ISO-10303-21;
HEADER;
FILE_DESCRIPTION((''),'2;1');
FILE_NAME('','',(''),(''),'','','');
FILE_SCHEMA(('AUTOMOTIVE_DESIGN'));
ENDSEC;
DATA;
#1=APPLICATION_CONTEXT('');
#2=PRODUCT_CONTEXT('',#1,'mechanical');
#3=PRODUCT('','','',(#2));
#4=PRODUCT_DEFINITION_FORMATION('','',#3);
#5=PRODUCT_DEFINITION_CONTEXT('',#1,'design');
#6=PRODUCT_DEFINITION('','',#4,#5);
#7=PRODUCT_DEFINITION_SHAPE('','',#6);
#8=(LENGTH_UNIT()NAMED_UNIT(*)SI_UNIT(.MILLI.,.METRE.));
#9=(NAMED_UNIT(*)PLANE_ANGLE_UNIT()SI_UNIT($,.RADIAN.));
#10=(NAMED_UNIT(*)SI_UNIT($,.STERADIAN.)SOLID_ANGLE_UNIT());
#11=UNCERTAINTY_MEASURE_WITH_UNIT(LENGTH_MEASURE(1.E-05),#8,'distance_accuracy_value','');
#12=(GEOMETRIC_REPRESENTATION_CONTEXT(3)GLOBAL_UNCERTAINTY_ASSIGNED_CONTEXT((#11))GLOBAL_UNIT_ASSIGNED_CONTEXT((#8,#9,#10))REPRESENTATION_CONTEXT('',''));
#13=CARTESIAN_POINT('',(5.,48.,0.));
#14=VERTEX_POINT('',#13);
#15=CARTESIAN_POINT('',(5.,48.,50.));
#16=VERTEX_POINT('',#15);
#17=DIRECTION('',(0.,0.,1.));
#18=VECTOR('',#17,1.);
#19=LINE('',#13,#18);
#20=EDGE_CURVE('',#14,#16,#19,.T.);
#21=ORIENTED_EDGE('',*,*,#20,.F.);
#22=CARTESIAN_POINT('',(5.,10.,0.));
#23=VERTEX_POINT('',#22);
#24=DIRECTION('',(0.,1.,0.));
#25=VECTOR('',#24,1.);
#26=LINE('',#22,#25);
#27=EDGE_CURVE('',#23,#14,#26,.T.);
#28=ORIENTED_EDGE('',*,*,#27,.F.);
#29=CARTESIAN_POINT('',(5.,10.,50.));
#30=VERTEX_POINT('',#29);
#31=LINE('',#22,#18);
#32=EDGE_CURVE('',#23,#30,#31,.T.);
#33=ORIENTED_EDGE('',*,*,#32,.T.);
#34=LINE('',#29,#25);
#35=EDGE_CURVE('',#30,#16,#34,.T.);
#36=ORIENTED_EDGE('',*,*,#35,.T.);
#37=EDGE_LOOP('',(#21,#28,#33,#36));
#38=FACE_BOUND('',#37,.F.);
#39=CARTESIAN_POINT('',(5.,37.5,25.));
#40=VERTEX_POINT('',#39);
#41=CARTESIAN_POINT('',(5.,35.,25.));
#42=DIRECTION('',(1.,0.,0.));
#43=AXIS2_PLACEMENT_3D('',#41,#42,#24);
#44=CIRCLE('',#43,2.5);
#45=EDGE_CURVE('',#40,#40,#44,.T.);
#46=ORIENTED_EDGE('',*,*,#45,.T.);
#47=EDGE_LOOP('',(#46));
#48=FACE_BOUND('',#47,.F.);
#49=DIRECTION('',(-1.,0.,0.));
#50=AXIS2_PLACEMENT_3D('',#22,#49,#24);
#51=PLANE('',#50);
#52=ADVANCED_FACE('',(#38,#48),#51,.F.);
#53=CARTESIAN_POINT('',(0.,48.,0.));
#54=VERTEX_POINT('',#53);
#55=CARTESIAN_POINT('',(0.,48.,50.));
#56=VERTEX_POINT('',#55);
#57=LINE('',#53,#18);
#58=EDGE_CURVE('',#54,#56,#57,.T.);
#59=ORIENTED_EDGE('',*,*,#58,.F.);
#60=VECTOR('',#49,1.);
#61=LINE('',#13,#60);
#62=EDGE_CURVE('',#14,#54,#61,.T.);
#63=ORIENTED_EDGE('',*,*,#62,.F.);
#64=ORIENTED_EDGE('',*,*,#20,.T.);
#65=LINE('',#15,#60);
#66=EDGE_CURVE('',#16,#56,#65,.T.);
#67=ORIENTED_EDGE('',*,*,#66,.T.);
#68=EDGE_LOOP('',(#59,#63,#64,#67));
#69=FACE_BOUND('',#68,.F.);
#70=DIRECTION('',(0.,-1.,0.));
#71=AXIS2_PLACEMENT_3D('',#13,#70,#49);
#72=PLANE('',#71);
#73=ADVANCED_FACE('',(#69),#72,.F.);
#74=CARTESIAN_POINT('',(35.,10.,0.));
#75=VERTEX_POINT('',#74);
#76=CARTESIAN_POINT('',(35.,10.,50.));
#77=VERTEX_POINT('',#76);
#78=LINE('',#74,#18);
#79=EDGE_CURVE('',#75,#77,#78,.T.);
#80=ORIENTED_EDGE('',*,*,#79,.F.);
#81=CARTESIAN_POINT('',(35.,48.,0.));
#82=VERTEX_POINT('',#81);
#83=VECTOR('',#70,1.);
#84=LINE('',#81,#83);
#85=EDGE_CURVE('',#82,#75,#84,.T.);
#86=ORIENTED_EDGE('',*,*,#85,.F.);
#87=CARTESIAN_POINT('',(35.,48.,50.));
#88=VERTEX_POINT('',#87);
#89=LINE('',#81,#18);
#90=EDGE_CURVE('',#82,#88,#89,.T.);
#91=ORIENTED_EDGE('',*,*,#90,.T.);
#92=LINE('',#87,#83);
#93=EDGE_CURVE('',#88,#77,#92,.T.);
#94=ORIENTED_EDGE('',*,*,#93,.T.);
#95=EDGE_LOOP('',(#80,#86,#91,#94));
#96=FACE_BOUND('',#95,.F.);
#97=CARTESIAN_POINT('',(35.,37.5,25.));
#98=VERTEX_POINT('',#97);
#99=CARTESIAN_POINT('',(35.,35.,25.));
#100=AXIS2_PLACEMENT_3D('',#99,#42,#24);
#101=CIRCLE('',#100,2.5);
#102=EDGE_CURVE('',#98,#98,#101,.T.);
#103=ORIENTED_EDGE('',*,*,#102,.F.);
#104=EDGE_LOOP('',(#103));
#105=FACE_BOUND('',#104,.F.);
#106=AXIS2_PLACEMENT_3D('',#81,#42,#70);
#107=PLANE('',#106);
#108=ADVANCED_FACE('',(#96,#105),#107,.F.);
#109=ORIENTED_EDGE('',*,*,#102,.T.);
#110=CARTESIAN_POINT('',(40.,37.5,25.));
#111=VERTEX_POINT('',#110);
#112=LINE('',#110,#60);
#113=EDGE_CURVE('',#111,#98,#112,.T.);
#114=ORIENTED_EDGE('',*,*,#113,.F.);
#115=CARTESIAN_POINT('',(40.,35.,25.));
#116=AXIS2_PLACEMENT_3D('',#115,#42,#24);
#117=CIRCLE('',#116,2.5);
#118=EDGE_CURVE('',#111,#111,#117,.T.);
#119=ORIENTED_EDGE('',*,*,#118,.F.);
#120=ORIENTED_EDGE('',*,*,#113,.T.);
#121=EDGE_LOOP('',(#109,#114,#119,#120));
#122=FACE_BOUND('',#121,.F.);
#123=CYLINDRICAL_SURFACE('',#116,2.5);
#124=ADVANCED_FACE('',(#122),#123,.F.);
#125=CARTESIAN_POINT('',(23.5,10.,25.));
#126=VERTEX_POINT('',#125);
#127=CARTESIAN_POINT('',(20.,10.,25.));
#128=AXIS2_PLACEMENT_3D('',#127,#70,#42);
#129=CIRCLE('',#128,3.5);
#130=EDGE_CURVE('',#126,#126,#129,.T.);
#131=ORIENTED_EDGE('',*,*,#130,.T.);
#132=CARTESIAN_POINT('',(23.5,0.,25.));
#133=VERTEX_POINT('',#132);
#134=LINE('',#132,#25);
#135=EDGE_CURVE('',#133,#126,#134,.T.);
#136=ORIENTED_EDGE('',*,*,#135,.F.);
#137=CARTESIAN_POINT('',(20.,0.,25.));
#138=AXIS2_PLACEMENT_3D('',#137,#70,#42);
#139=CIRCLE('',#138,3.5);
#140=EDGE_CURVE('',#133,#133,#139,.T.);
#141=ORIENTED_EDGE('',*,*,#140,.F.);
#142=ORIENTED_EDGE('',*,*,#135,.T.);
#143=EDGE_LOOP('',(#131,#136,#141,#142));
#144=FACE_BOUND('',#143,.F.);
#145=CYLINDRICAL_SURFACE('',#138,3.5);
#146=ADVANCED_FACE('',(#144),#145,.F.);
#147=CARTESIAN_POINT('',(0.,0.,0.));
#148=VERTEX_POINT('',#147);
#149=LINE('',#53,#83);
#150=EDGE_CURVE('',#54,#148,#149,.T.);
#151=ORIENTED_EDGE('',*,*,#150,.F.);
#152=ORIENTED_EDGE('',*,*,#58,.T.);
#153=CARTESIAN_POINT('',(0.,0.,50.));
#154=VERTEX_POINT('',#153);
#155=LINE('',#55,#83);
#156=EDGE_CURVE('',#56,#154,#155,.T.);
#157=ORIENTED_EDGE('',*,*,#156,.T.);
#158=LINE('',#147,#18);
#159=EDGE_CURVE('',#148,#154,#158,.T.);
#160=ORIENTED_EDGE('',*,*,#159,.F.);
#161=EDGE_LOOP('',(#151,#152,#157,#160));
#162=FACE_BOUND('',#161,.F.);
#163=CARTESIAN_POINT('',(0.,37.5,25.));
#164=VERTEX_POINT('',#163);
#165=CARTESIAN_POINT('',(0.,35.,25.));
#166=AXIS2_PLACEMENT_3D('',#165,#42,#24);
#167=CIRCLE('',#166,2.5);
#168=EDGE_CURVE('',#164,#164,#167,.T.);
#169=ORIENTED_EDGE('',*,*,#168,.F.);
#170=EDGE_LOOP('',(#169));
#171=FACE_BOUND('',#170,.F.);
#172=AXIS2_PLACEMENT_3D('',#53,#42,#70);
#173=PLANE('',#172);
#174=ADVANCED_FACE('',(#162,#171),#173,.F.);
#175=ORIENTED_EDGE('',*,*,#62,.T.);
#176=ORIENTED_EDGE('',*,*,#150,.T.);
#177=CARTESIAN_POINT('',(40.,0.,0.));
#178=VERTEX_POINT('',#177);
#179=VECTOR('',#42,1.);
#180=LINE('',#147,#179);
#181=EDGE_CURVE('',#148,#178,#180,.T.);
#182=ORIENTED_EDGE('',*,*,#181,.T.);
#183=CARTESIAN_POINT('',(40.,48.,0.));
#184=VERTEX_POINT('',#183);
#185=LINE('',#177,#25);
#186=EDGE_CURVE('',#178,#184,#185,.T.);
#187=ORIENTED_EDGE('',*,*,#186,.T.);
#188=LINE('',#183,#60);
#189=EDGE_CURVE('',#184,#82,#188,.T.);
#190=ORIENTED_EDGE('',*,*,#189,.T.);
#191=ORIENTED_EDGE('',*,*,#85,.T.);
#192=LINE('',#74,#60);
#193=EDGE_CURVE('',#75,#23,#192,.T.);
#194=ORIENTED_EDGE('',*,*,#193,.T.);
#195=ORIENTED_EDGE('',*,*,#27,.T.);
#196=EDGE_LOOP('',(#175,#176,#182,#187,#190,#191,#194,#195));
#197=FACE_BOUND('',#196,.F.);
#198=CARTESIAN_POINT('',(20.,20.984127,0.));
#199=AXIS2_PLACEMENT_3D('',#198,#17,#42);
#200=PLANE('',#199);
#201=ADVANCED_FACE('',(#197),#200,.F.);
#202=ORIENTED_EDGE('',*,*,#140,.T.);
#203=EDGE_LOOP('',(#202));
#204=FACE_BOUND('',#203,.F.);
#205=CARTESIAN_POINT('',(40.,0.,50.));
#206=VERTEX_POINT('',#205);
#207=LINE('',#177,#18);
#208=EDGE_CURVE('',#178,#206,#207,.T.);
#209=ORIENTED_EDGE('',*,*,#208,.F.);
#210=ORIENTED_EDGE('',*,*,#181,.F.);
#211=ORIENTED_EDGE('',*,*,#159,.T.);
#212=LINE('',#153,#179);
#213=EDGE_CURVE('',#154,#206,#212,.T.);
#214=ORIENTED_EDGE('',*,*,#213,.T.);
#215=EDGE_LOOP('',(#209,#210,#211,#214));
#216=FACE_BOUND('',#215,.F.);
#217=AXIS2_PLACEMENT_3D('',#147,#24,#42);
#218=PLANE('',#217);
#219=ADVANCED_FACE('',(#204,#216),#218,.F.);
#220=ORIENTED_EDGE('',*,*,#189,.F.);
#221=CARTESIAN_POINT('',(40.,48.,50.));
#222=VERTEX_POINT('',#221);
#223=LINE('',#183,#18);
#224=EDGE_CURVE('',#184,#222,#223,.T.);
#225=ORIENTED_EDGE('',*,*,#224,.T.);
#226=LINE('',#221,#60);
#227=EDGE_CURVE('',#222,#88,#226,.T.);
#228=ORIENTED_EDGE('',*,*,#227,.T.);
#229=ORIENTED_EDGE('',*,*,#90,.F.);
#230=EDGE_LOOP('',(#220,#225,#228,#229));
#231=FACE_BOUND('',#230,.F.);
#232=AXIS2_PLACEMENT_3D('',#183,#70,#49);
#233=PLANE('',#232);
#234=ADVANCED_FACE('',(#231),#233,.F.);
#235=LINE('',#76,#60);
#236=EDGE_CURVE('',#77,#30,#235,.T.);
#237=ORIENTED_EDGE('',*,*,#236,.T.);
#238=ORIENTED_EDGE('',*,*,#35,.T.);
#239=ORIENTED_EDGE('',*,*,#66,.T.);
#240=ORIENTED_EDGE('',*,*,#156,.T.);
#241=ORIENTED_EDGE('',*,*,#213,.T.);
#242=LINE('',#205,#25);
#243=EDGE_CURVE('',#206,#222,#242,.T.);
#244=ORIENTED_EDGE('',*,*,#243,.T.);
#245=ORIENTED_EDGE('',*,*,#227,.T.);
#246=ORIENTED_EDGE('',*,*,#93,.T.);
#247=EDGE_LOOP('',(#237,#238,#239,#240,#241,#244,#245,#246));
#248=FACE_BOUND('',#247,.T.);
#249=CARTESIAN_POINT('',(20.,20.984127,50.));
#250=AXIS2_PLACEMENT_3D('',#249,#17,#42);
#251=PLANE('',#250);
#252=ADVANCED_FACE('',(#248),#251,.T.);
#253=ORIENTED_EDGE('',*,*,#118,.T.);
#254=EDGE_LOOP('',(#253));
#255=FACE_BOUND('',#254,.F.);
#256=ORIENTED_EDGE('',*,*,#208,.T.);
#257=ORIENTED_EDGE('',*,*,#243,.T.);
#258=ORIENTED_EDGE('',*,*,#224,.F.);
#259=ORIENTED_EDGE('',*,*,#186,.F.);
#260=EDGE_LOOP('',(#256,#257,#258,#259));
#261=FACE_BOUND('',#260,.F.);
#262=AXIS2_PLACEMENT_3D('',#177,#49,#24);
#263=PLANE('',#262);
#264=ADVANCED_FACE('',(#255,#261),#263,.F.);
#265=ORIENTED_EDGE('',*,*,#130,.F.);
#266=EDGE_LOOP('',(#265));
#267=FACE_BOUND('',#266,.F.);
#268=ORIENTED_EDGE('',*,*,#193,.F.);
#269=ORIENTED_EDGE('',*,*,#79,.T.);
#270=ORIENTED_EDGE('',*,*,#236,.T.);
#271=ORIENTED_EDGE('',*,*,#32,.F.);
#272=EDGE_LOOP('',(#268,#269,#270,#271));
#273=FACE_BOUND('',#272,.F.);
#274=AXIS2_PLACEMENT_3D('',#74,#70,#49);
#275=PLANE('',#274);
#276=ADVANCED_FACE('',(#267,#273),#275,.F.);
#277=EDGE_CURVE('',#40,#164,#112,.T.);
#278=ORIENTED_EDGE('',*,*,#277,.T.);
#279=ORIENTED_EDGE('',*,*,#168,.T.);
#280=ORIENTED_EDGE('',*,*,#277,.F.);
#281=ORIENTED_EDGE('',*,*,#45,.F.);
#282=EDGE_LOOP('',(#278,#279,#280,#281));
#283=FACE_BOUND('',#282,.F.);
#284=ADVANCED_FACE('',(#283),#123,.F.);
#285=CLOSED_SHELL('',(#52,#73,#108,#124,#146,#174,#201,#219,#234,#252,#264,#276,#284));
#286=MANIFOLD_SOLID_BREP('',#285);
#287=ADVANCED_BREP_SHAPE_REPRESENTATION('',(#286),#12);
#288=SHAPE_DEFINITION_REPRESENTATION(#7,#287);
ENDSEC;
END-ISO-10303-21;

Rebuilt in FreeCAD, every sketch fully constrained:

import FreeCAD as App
import Part
import Sketcher


def add_polygon(sketch, points):
    """Adds a closed chain of lines whose ends are joined by coincident constraints."""
    first, n = sketch.GeometryCount, len(points)
    for a, b in zip(points, points[1:] + points[:1]):
        sketch.addGeometry(Part.LineSegment(App.Vector(*a, 0), App.Vector(*b, 0)), False)
    for i in range(n):
        sketch.addConstraint(Sketcher.Constraint("Coincident", first + i, 2, first + (i + 1) % n, 1))

doc = App.newDocument("Part")
body = doc.addObject("PartDesign::Body", "Body")

sketch1 = body.newObject("Sketcher::SketchObject", "Sketch")
sketch1.AttachmentSupport = (doc.getObject("XY_Plane"), [""])
sketch1.MapMode = "FlatFace"
add_polygon(sketch1, [(0, 48), (0, 0), (40, 0), (40, 48), (35, 48), (35, 10), (5, 10), (5, 48)])
sketch1.addConstraint([
    Sketcher.Constraint("Vertical", 0),
    Sketcher.Constraint("Horizontal", 1),
    Sketcher.Constraint("Vertical", 2),
    Sketcher.Constraint("Horizontal", 3),
    Sketcher.Constraint("Vertical", 4),
    Sketcher.Constraint("Horizontal", 5),
    Sketcher.Constraint("Vertical", 6),
    Sketcher.Constraint("Horizontal", 7),
    Sketcher.Constraint("Coincident", 0, 2, -1, 1),
    Sketcher.Constraint("Horizontal", 3, 2, 6, 2),
    Sketcher.Constraint("Equal", 3, 7),
    Sketcher.Constraint("DistanceX", 1, 1, 1, 2, 40.0),
    Sketcher.Constraint("DistanceX", 3, 2, 3, 1, 5.0),
    Sketcher.Constraint("DistanceY", 0, 2, 0, 1, 48.0),
    Sketcher.Constraint("DistanceY", 4, 2, 4, 1, 38.0),
])
pad1 = body.newObject("PartDesign::Pad", "Pad")
pad1.Profile = sketch1
pad1.Length = 50

sketch2 = body.newObject("Sketcher::SketchObject", "Sketch001")
sketch2.AttachmentSupport = (doc.getObject("XZ_Plane"), [""])
sketch2.MapMode = "FlatFace"
sketch2.addGeometry(Part.Circle(App.Vector(20, 25, 0), App.Vector(0, 0, 1), 3.5), False)
sketch2.addConstraint([
    Sketcher.Constraint("Diameter", 0, 7.0),
    Sketcher.Constraint("DistanceX", -1, 1, 0, 3, 20.0),
    Sketcher.Constraint("DistanceY", -1, 1, 0, 3, 25.0),
])
pocket1 = body.newObject("PartDesign::Pocket", "Pocket")
pocket1.Profile = sketch2
pocket1.Length = 25

sketch3 = body.newObject("Sketcher::SketchObject", "Sketch002")
sketch3.AttachmentSupport = (doc.getObject("YZ_Plane"), [""])
sketch3.MapMode = "FlatFace"
sketch3.AttachmentOffset = App.Placement(App.Vector(0, 0, 40), App.Rotation())
sketch3.addGeometry(Part.Circle(App.Vector(35, 25, 0), App.Vector(0, 0, 1), 2.5), False)
sketch3.addConstraint([
    Sketcher.Constraint("Diameter", 0, 5.0),
    Sketcher.Constraint("DistanceX", -1, 1, 0, 3, 35.0),
    Sketcher.Constraint("DistanceY", -1, 1, 0, 3, 25.0),
])
pocket2 = body.newObject("PartDesign::Pocket", "Pocket001")
pocket2.Profile = sketch3
pocket2.Type = "ThroughAll"

doc.recompute()
